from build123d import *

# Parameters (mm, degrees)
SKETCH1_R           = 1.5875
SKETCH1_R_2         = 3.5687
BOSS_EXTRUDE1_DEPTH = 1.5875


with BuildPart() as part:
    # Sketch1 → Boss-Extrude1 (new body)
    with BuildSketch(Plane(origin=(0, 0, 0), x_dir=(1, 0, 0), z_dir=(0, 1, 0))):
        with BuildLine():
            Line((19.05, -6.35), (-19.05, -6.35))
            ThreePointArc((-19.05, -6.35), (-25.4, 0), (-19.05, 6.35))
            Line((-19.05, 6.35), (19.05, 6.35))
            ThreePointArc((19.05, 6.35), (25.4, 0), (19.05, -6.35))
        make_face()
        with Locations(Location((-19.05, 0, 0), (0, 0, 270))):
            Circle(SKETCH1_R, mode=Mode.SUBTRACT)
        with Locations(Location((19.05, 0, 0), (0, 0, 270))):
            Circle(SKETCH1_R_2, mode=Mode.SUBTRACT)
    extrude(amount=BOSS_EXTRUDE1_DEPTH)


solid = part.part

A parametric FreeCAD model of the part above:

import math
import FreeCAD as App
import Part
import Sketcher
Q = App.Units.Quantity

doc = App.newDocument("Part")
body = doc.addObject("PartDesign::Body", "Body")

# Sketch on XZ plane
sketch1 = doc.addObject("Sketcher::SketchObject", "Sketch")
body.addObject(sketch1)
sketch1.AttachmentSupport = (doc.XZ_Plane, [""])
sketch1.MapMode = "FlatFace"
sketch1.addGeometry(Part.LineSegment(App.Vector(-19.05, 6.35, 0), App.Vector(19.05, 6.35, 0)), False)
sketch1.addGeometry(Part.ArcOfCircle(Part.Circle(App.Vector(19.05, 0, 0), App.Vector(0, 0, 1), 6.35), math.radians(-90), math.radians(90)), False)
sketch1.addGeometry(Part.LineSegment(App.Vector(19.05, -6.35, 0), App.Vector(-19.05, -6.35, 0)), False)
sketch1.addGeometry(Part.ArcOfCircle(Part.Circle(App.Vector(-19.05, 0, 0), App.Vector(0, 0, 1), 6.35), math.radians(90), math.radians(270)), False)
sketch1.addGeometry(Part.Circle(App.Vector(19.05, 0, 0), App.Vector(0, 0, 1), 3.5687), False)
sketch1.addGeometry(Part.Circle(App.Vector(-19.05, 0, 0), App.Vector(0, 0, 1), 1.5875), False)
sketch1.addConstraint(Sketcher.Constraint("Tangent", 0, 2, 1, 2))
sketch1.addConstraint(Sketcher.Constraint("Tangent", 1, 1, 2, 1))
sketch1.addConstraint(Sketcher.Constraint("Tangent", 2, 2, 3, 2))
sketch1.addConstraint(Sketcher.Constraint("Tangent", 3, 1, 0, 1))
sketch1.addConstraint(Sketcher.Constraint("Horizontal", 0))
sketch1.addConstraint(Sketcher.Constraint("Horizontal", 2))
sketch1.addConstraint(Sketcher.Constraint("Coincident", 4, 3, 1, 3))
sketch1.addConstraint(Sketcher.Constraint("Coincident", 5, 3, 3, 3))
sketch1.addConstraint(Sketcher.Constraint("Symmetric", 1, 3, 3, 3, -1, 1))
sketch1.addConstraint(Sketcher.Constraint("Radius", 1, Q("0.25 in")))
sketch1.addConstraint(Sketcher.Constraint("Diameter", 4, Q("0.281 in")))
sketch1.addConstraint(Sketcher.Constraint("Diameter", 5, Q("0.125 in")))
sketch1.addConstraint(Sketcher.Constraint("DistanceX", 0, 1, 0, 2, Q("1.5 in")))
pad1 = doc.addObject("PartDesign::Pad", "Pad")
body.addObject(pad1)
pad1.Profile = sketch1
pad1.Length = Q("0.0625 in")
pad1.Reversed = True

doc.recompute()
